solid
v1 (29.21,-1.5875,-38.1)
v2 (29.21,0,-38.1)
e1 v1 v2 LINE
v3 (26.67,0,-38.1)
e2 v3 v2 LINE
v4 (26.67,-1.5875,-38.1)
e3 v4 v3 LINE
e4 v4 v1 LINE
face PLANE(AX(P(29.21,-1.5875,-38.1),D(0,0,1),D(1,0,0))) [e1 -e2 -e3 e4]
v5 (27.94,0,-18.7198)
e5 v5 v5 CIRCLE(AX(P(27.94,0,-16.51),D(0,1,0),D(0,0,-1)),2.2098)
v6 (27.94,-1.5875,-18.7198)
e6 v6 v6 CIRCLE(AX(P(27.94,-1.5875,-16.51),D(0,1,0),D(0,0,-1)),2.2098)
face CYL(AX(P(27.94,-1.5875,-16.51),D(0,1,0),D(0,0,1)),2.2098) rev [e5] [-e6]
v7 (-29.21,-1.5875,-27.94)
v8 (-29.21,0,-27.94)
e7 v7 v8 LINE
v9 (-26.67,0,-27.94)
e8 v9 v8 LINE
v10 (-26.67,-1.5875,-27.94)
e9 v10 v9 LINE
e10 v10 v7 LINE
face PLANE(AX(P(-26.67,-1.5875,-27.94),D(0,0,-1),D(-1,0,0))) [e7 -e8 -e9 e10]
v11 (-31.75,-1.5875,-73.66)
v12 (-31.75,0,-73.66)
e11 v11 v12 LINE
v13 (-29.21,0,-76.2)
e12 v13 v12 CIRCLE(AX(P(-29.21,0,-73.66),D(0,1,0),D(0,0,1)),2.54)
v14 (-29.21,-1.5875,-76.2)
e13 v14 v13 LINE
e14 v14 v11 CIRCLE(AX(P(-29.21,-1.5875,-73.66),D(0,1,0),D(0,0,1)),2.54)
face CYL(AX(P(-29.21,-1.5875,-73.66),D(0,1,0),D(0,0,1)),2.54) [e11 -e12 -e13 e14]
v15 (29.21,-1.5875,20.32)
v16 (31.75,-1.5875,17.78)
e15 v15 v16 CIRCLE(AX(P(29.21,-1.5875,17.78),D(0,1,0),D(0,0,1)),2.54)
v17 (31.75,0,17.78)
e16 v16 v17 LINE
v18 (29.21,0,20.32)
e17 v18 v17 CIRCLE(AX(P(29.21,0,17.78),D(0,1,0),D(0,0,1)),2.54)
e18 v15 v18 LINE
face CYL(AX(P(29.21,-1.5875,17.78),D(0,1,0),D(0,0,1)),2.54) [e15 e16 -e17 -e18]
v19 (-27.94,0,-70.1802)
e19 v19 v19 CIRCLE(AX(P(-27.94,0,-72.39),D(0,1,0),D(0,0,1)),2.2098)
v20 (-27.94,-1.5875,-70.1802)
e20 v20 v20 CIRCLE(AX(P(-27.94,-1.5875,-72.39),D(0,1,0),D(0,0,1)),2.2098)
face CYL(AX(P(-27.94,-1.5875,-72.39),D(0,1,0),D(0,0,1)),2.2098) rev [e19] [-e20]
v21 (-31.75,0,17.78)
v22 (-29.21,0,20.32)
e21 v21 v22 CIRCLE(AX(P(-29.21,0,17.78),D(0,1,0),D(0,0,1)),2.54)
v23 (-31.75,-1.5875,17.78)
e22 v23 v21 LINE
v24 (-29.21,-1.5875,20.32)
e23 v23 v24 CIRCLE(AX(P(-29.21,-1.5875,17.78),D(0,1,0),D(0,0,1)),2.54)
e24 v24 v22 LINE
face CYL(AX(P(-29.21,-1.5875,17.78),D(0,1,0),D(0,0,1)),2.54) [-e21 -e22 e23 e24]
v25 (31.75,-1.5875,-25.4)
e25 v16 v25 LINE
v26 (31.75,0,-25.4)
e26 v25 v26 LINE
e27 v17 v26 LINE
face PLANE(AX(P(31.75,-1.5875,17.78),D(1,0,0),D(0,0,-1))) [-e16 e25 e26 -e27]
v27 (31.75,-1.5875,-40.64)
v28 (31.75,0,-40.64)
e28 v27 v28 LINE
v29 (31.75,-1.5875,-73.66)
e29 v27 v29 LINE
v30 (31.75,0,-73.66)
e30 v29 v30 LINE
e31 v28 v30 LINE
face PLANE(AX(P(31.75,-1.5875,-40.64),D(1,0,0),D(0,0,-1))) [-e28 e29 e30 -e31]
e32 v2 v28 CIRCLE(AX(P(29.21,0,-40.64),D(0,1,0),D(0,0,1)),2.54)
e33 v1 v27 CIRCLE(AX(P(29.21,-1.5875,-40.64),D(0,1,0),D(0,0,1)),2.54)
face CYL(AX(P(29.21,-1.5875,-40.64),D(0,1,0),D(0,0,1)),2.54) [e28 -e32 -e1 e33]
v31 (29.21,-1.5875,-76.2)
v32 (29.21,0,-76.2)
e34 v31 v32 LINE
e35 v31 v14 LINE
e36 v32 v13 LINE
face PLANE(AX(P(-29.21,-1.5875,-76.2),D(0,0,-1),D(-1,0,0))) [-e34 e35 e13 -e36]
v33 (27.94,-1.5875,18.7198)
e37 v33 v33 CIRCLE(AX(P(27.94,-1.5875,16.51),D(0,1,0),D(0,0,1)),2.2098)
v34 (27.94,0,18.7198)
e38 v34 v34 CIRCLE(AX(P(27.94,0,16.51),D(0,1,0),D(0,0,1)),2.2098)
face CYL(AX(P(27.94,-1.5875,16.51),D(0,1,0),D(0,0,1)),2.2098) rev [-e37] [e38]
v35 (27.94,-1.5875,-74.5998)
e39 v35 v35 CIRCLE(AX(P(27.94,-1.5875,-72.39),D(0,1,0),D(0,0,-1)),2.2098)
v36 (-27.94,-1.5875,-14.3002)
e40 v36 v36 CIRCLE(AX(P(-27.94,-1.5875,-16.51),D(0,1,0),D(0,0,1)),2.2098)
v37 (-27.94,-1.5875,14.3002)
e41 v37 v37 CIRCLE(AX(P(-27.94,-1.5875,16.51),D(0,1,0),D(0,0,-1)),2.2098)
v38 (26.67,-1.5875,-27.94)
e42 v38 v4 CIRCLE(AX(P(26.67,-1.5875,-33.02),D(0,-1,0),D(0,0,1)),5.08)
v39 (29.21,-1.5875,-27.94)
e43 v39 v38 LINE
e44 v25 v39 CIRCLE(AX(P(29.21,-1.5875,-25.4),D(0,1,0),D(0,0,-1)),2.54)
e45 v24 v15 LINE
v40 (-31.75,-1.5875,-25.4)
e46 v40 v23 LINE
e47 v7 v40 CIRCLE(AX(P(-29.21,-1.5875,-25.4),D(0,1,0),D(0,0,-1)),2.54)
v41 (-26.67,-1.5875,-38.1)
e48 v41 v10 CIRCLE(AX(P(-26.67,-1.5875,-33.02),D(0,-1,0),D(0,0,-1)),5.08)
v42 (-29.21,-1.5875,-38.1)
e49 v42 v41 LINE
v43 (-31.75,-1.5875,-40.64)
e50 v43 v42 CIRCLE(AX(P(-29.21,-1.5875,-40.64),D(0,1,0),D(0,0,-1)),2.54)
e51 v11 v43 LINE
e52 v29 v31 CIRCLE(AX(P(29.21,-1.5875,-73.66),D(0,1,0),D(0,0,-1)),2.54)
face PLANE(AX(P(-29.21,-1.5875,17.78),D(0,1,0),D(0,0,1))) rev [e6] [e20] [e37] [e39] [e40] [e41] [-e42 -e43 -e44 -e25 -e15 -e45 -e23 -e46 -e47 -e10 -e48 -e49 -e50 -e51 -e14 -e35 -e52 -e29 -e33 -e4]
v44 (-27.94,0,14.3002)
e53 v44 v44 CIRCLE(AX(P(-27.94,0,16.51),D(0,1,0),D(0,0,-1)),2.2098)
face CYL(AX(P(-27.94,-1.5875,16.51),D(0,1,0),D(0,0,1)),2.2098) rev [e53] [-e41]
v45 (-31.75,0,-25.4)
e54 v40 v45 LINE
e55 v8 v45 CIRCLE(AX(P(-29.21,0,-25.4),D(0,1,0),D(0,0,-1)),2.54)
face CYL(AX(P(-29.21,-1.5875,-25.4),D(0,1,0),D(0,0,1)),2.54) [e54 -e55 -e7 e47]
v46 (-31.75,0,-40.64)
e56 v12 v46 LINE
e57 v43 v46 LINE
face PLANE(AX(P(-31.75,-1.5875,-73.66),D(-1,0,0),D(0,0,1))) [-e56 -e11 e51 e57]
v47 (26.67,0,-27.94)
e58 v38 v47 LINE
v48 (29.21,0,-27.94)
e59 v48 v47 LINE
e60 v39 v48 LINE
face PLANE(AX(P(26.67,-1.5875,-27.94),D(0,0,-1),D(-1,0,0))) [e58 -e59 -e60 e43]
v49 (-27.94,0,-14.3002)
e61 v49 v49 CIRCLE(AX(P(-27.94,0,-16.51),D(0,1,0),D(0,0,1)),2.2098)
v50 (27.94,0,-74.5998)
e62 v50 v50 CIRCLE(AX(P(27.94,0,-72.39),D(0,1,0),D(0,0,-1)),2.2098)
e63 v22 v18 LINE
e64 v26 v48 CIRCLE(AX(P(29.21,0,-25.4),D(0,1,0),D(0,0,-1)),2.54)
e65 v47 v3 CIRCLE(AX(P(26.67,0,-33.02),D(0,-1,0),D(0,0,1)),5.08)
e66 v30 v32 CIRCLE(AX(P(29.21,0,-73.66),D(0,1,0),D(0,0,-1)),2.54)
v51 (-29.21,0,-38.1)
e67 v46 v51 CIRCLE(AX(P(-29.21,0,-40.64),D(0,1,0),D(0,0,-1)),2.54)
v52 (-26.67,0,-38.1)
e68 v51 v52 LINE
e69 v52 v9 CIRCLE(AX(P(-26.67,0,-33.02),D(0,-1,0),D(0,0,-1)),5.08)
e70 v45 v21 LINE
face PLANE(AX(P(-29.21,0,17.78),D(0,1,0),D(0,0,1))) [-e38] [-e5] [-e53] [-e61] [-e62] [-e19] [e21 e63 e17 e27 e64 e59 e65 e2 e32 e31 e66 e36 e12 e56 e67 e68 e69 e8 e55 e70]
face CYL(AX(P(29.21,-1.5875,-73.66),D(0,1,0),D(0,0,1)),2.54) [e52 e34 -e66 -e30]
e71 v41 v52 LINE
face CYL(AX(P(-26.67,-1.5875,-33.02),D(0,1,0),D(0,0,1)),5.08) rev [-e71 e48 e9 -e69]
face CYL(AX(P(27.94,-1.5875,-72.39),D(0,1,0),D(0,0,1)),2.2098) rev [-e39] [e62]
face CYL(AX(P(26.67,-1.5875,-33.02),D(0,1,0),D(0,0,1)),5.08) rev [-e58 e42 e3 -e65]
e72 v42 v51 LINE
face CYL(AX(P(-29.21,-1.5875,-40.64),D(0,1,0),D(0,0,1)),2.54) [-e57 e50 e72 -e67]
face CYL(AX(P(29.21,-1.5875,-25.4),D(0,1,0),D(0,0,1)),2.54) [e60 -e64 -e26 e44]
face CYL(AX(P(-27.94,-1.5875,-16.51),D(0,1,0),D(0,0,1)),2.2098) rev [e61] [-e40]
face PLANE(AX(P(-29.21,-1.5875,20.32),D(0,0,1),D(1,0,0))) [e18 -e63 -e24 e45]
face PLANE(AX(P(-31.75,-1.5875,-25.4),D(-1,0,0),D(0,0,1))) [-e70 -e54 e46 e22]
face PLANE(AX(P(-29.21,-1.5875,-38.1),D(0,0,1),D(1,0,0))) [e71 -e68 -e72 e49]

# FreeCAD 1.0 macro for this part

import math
import FreeCAD as App
import Part
import Sketcher

V = App.Vector
Q = App.Units.Quantity

doc = App.newDocument("Part")
params = doc.addObject("Spreadsheet::Sheet", "Params")
for row, (alias, value) in enumerate([
    ("sketch1_radius", "0.1 in"),
    ("sketch1_radius2", "0.2 in"),
    ("sketch1_width", "2.3 in"),
    ("sketch1_width2", "0.1 in"),
    ("sketch1_height", "1.3 in"),
    ("pad1_length", "0.0625 in"),
    ("sketch2_diameter", "0.174 in"),
], start=1):
    params.set(f"A{row}", alias)
    params.set(f"B{row}", "=" + value)
    params.setAlias(f"B{row}", alias)

body = doc.addObject("PartDesign::Body", "Body")

# Sketch on XZ plane
sketch1 = body.newObject("Sketcher::SketchObject", "Sketch")
sketch1.AttachmentSupport = (doc.getObject("XZ_Plane"), [""])
sketch1.MapMode = "FlatFace"
sketch1.addGeometry([
    Part.LineSegment(V(29.2, -76.2, 0), V(-29.2, -76.2, 0)),  # 0
    Part.ArcOfCircle(Part.Circle(V(-29.2, -73.7, 0), V(0, 0, 1), 2.5), math.radians(-180), math.radians(-90)),  # 1
    Part.LineSegment(V(-31.8, -73.7, 0), V(-31.8, -40.6, 0)),  # 2
    Part.ArcOfCircle(Part.Circle(V(-29.2, -40.6, 0), V(0, 0, 1), 2.5), math.radians(90), math.radians(180)),  # 3
    Part.LineSegment(V(-29.2, -38.1, 0), V(-26.7, -38.1, 0)),  # 4
    Part.ArcOfCircle(Part.Circle(V(-26.7, -33, 0), V(0, 0, 1), 5.1), math.radians(-90), math.radians(90)),  # 5
    Part.LineSegment(V(-26.7, -27.9, 0), V(-29.2, -27.9, 0)),  # 6
    Part.ArcOfCircle(Part.Circle(V(-29.2, -25.4, 0), V(0, 0, 1), 2.5), math.radians(-180), math.radians(-90)),  # 7
    Part.LineSegment(V(-31.8, -25.4, 0), V(-31.8, 17.8, 0)),  # 8
    Part.ArcOfCircle(Part.Circle(V(-29.2, 17.8, 0), V(0, 0, 1), 2.5), math.radians(90), math.radians(180)),  # 9
    Part.LineSegment(V(-29.2, 20.3, 0), V(29.2, 20.3, 0)),  # 10
    Part.ArcOfCircle(Part.Circle(V(29.2, 17.8, 0), V(0, 0, 1), 2.5), math.radians(0), math.radians(90)),  # 11
    Part.LineSegment(V(31.8, 17.8, 0), V(31.8, -25.4, 0)),  # 12
    Part.ArcOfCircle(Part.Circle(V(29.2, -25.4, 0), V(0, 0, 1), 2.5), math.radians(-90), math.radians(0)),  # 13
    Part.LineSegment(V(29.2, -27.9, 0), V(26.7, -27.9, 0)),  # 14
    Part.ArcOfCircle(Part.Circle(V(26.7, -33, 0), V(0, 0, 1), 5.1), math.radians(90), math.radians(270)),  # 15
    Part.LineSegment(V(26.7, -38.1, 0), V(29.2, -38.1, 0)),  # 16
    Part.ArcOfCircle(Part.Circle(V(29.2, -40.6, 0), V(0, 0, 1), 2.5), math.radians(0), math.radians(90)),  # 17
    Part.LineSegment(V(31.8, -40.6, 0), V(31.8, -73.7, 0)),  # 18
    Part.ArcOfCircle(Part.Circle(V(29.2, -73.7, 0), V(0, 0, 1), 2.5), math.radians(-90), math.radians(0)),  # 19
], False)
sketch1.addConstraint([
    Sketcher.Constraint("Tangent", 0, 2, 1, 2),
    Sketcher.Constraint("Tangent", 1, 1, 2, 1),
    Sketcher.Constraint("Tangent", 2, 2, 3, 2),
    Sketcher.Constraint("Tangent", 3, 1, 4, 1),
    Sketcher.Constraint("Tangent", 4, 2, 5, 1),
    Sketcher.Constraint("Tangent", 5, 2, 6, 1),
    Sketcher.Constraint("Tangent", 6, 2, 7, 2),
    Sketcher.Constraint("Tangent", 7, 1, 8, 1),
    Sketcher.Constraint("Tangent", 8, 2, 9, 2),
    Sketcher.Constraint("Tangent", 9, 1, 10, 1),
    Sketcher.Constraint("Tangent", 10, 2, 11, 2),
    Sketcher.Constraint("Tangent", 11, 1, 12, 1),
    Sketcher.Constraint("Tangent", 12, 2, 13, 2),
    Sketcher.Constraint("Tangent", 13, 1, 14, 1),
    Sketcher.Constraint("Tangent", 14, 2, 15, 1),
    Sketcher.Constraint("Tangent", 15, 2, 16, 1),
    Sketcher.Constraint("Tangent", 16, 2, 17, 2),
    Sketcher.Constraint("Tangent", 17, 1, 18, 1),
    Sketcher.Constraint("Tangent", 18, 2, 19, 2),
    Sketcher.Constraint("Tangent", 19, 1, 0, 1),
    Sketcher.Constraint("Horizontal", 0),
    Sketcher.Constraint("Vertical", 2),
    Sketcher.Constraint("Horizontal", 4),
    Sketcher.Constraint("Horizontal", 6),
    Sketcher.Constraint("Vertical", 8),
    Sketcher.Constraint("Horizontal", 10),
    Sketcher.Constraint("Vertical", 12),
    Sketcher.Constraint("Horizontal", 14),
    Sketcher.Constraint("Horizontal", 16),
    Sketcher.Constraint("Vertical", 18),
    Sketcher.Constraint("Equal", 1, 3),
    Sketcher.Constraint("Equal", 3, 7),
    Sketcher.Constraint("Equal", 7, 9),
    Sketcher.Constraint("Equal", 9, 11),
    Sketcher.Constraint("Equal", 11, 13),
    Sketcher.Constraint("Equal", 5, 15),
    Sketcher.Constraint("Equal", 13, 17),
    Sketcher.Constraint("Equal", 17, 19),
    Sketcher.Constraint("Symmetric", 7, 3, 13, 3, -2),
    Sketcher.Constraint("Vertical", 3, 3, 7, 3),
    Sketcher.Constraint("Vertical", 13, 3, 17, 3),
    Sketcher.Constraint("Equal", 6, 14),
    Sketcher.Constraint("Radius", 1, Q("0.1 in")),
    Sketcher.Constraint("Radius", 5, Q("0.2 in")),
    Sketcher.Constraint("DistanceX", 0, 2, 0, 1, Q("2.3 in")),
    Sketcher.Constraint("DistanceX", 4, 1, 4, 2, Q("0.1 in")),
    Sketcher.Constraint("DistanceY", 2, 1, 2, 2, Q("1.3 in")),
    Sketcher.Constraint("DistanceY", 8, 1, 8, 2, Q("1.7 in")),
    Sketcher.Constraint("DistanceY", 7, 3, -1, 1, Q("1 in")),
])
sketch1.setExpression("Constraints[42]", "Params.sketch1_radius")
sketch1.setExpression("Constraints[43]", "Params.sketch1_radius2")
sketch1.setExpression("Constraints[44]", "Params.sketch1_width")
sketch1.setExpression("Constraints[45]", "Params.sketch1_width2")
sketch1.setExpression("Constraints[46]", "Params.sketch1_height")
pad1 = body.newObject("PartDesign::Pad", "Pad")
pad1.Profile = sketch1
pad1.setExpression("Length", "Params.pad1_length")

# Sketch on XZ plane
sketch2 = body.newObject("Sketcher::SketchObject", "Sketch001")
sketch2.AttachmentSupport = (doc.getObject("XZ_Plane"), [""])
sketch2.MapMode = "FlatFace"
sketch2.addGeometry([
    Part.Circle(V(-27.9, -72.4, 0), V(0, 0, 1), 2.2),  # 0
    Part.Circle(V(27.9, -72.4, 0), V(0, 0, 1), 2.2),  # 1
    Part.Circle(V(-27.9, 16.5, 0), V(0, 0, 1), 2.2),  # 2
    Part.Circle(V(27.9, 16.5, 0), V(0, 0, 1), 2.2),  # 3
    Part.Circle(V(-27.9, -16.5, 0), V(0, 0, 1), 2.2),  # 4
    Part.Circle(V(27.9, -16.5, 0), V(0, 0, 1), 2.2),  # 5
], False)
sketch2.addConstraint([
    Sketcher.Constraint("Equal", 0, 1),
    Sketcher.Constraint("Equal", 1, 2),
    Sketcher.Constraint("Equal", 2, 3),
    Sketcher.Constraint("Equal", 3, 4),
    Sketcher.Constraint("Equal", 4, 5),
    Sketcher.Constraint("Symmetric", 3, 3, 4, 3, -1, 1),
    Sketcher.Constraint("Symmetric", 2, 3, 5, 3, -1, 1),
    Sketcher.Constraint("Symmetric", 0, 3, 1, 3, -2),
    Sketcher.Constraint("Symmetric", 2, 3, 3, 3, -2),
    Sketcher.Constraint("Vertical", 0, 3, 2, 3),
    Sketcher.Constraint("Diameter", 0, Q("0.174 in")),
    Sketcher.Constraint("DistanceX", 0, 3, -1, 1, Q("1.1 in")),
    Sketcher.Constraint("DistanceY", 0, 3, 2, 3, Q("3.5 in")),
    Sketcher.Constraint("DistanceY", 4, 3, 2, 3, Q("1.3 in")),
])
sketch2.setExpression("Constraints[10]", "Params.sketch2_diameter")
pocket1 = body.newObject("PartDesign::Pocket", "Pocket")
pocket1.Profile = sketch2
pocket1.Type = "ThroughAll"
pocket1.Reversed = True

doc.recompute()
